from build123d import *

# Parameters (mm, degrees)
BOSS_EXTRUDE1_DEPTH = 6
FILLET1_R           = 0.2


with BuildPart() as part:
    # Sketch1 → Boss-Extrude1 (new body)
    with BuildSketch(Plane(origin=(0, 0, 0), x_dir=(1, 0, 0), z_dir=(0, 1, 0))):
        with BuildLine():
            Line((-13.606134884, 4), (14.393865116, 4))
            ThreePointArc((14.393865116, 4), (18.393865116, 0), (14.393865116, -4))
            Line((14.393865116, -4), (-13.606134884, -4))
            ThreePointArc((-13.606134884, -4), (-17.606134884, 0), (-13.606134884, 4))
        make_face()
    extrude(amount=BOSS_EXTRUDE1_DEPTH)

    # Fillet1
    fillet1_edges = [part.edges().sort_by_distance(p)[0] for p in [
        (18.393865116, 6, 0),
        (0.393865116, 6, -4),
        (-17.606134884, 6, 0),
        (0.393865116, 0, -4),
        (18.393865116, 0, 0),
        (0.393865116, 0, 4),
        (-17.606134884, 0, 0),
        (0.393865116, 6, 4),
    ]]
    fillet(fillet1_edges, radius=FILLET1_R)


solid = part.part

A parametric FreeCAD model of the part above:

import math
import FreeCAD as App
import Part
import Sketcher

V = App.Vector


def edges_at(feature, points):
    """Names of the edges that pass closest to the given points."""
    edges = feature.Shape.Edges
    near = lambda p: min(range(len(edges)), key=lambda i: edges[i].distToShape(Part.Vertex(*p))[0])
    return sorted({f"Edge{near(p) + 1}" for p in points})

doc = App.newDocument("Part")
body = doc.addObject("PartDesign::Body", "Body")

sketch1 = body.newObject("Sketcher::SketchObject", "Sketch")
sketch1.AttachmentSupport = (doc.getObject("XZ_Plane"), [""])
sketch1.MapMode = "FlatFace"
sketch1.addGeometry(Part.LineSegment(V(14.4, -4, 0), V(-13.6, -4, 0)), False)
sketch1.addGeometry(Part.ArcOfCircle(Part.Circle(V(-13.6, 0, 0), V(0, 0, 1), 4), math.radians(90), math.radians(270)), False)
sketch1.addGeometry(Part.LineSegment(V(-13.6, 4, 0), V(14.4, 4, 0)), False)
sketch1.addGeometry(Part.ArcOfCircle(Part.Circle(V(14.4, 0, 0), V(0, 0, 1), 4), math.radians(-90), math.radians(90)), False)
sketch1.addConstraint(Sketcher.Constraint("Tangent", 0, 2, 1, 2))
sketch1.addConstraint(Sketcher.Constraint("Tangent", 1, 1, 2, 1))
sketch1.addConstraint(Sketcher.Constraint("Tangent", 2, 2, 3, 2))
sketch1.addConstraint(Sketcher.Constraint("Tangent", 3, 1, 0, 1))
sketch1.addConstraint(Sketcher.Constraint("Horizontal", 0))
sketch1.addConstraint(Sketcher.Constraint("Horizontal", 2))
sketch1.addConstraint(Sketcher.Constraint("PointOnObject", 1, 3, -1))
sketch1.addConstraint(Sketcher.Constraint("Radius", 1, 4.0))
sketch1.addConstraint(Sketcher.Constraint("DistanceX", 0, 2, 0, 1, 28.0))
sketch1.addConstraint(Sketcher.Constraint("DistanceX", 1, 3, -1, 1, 13.606135))
pad1 = body.newObject("PartDesign::Pad", "Pad")
pad1.Profile = sketch1
pad1.Length = 6
pad1.Reversed = True
doc.recompute()

fillet = body.newObject("PartDesign::Fillet", "Fillet")
fillet.Base = (pad1, edges_at(pad1, [
    (18.394, 6, 0),
    (0.394, 6, -4),
    (-17.606, 6, 0),
    (0.394, 0, -4),
    (18.394, 0, 0),
    (0.394, 0, 4),
    (-17.606, 0, 0),
    (0.394, 6, 4),
]))
fillet.Radius = 0.2

doc.recompute()
